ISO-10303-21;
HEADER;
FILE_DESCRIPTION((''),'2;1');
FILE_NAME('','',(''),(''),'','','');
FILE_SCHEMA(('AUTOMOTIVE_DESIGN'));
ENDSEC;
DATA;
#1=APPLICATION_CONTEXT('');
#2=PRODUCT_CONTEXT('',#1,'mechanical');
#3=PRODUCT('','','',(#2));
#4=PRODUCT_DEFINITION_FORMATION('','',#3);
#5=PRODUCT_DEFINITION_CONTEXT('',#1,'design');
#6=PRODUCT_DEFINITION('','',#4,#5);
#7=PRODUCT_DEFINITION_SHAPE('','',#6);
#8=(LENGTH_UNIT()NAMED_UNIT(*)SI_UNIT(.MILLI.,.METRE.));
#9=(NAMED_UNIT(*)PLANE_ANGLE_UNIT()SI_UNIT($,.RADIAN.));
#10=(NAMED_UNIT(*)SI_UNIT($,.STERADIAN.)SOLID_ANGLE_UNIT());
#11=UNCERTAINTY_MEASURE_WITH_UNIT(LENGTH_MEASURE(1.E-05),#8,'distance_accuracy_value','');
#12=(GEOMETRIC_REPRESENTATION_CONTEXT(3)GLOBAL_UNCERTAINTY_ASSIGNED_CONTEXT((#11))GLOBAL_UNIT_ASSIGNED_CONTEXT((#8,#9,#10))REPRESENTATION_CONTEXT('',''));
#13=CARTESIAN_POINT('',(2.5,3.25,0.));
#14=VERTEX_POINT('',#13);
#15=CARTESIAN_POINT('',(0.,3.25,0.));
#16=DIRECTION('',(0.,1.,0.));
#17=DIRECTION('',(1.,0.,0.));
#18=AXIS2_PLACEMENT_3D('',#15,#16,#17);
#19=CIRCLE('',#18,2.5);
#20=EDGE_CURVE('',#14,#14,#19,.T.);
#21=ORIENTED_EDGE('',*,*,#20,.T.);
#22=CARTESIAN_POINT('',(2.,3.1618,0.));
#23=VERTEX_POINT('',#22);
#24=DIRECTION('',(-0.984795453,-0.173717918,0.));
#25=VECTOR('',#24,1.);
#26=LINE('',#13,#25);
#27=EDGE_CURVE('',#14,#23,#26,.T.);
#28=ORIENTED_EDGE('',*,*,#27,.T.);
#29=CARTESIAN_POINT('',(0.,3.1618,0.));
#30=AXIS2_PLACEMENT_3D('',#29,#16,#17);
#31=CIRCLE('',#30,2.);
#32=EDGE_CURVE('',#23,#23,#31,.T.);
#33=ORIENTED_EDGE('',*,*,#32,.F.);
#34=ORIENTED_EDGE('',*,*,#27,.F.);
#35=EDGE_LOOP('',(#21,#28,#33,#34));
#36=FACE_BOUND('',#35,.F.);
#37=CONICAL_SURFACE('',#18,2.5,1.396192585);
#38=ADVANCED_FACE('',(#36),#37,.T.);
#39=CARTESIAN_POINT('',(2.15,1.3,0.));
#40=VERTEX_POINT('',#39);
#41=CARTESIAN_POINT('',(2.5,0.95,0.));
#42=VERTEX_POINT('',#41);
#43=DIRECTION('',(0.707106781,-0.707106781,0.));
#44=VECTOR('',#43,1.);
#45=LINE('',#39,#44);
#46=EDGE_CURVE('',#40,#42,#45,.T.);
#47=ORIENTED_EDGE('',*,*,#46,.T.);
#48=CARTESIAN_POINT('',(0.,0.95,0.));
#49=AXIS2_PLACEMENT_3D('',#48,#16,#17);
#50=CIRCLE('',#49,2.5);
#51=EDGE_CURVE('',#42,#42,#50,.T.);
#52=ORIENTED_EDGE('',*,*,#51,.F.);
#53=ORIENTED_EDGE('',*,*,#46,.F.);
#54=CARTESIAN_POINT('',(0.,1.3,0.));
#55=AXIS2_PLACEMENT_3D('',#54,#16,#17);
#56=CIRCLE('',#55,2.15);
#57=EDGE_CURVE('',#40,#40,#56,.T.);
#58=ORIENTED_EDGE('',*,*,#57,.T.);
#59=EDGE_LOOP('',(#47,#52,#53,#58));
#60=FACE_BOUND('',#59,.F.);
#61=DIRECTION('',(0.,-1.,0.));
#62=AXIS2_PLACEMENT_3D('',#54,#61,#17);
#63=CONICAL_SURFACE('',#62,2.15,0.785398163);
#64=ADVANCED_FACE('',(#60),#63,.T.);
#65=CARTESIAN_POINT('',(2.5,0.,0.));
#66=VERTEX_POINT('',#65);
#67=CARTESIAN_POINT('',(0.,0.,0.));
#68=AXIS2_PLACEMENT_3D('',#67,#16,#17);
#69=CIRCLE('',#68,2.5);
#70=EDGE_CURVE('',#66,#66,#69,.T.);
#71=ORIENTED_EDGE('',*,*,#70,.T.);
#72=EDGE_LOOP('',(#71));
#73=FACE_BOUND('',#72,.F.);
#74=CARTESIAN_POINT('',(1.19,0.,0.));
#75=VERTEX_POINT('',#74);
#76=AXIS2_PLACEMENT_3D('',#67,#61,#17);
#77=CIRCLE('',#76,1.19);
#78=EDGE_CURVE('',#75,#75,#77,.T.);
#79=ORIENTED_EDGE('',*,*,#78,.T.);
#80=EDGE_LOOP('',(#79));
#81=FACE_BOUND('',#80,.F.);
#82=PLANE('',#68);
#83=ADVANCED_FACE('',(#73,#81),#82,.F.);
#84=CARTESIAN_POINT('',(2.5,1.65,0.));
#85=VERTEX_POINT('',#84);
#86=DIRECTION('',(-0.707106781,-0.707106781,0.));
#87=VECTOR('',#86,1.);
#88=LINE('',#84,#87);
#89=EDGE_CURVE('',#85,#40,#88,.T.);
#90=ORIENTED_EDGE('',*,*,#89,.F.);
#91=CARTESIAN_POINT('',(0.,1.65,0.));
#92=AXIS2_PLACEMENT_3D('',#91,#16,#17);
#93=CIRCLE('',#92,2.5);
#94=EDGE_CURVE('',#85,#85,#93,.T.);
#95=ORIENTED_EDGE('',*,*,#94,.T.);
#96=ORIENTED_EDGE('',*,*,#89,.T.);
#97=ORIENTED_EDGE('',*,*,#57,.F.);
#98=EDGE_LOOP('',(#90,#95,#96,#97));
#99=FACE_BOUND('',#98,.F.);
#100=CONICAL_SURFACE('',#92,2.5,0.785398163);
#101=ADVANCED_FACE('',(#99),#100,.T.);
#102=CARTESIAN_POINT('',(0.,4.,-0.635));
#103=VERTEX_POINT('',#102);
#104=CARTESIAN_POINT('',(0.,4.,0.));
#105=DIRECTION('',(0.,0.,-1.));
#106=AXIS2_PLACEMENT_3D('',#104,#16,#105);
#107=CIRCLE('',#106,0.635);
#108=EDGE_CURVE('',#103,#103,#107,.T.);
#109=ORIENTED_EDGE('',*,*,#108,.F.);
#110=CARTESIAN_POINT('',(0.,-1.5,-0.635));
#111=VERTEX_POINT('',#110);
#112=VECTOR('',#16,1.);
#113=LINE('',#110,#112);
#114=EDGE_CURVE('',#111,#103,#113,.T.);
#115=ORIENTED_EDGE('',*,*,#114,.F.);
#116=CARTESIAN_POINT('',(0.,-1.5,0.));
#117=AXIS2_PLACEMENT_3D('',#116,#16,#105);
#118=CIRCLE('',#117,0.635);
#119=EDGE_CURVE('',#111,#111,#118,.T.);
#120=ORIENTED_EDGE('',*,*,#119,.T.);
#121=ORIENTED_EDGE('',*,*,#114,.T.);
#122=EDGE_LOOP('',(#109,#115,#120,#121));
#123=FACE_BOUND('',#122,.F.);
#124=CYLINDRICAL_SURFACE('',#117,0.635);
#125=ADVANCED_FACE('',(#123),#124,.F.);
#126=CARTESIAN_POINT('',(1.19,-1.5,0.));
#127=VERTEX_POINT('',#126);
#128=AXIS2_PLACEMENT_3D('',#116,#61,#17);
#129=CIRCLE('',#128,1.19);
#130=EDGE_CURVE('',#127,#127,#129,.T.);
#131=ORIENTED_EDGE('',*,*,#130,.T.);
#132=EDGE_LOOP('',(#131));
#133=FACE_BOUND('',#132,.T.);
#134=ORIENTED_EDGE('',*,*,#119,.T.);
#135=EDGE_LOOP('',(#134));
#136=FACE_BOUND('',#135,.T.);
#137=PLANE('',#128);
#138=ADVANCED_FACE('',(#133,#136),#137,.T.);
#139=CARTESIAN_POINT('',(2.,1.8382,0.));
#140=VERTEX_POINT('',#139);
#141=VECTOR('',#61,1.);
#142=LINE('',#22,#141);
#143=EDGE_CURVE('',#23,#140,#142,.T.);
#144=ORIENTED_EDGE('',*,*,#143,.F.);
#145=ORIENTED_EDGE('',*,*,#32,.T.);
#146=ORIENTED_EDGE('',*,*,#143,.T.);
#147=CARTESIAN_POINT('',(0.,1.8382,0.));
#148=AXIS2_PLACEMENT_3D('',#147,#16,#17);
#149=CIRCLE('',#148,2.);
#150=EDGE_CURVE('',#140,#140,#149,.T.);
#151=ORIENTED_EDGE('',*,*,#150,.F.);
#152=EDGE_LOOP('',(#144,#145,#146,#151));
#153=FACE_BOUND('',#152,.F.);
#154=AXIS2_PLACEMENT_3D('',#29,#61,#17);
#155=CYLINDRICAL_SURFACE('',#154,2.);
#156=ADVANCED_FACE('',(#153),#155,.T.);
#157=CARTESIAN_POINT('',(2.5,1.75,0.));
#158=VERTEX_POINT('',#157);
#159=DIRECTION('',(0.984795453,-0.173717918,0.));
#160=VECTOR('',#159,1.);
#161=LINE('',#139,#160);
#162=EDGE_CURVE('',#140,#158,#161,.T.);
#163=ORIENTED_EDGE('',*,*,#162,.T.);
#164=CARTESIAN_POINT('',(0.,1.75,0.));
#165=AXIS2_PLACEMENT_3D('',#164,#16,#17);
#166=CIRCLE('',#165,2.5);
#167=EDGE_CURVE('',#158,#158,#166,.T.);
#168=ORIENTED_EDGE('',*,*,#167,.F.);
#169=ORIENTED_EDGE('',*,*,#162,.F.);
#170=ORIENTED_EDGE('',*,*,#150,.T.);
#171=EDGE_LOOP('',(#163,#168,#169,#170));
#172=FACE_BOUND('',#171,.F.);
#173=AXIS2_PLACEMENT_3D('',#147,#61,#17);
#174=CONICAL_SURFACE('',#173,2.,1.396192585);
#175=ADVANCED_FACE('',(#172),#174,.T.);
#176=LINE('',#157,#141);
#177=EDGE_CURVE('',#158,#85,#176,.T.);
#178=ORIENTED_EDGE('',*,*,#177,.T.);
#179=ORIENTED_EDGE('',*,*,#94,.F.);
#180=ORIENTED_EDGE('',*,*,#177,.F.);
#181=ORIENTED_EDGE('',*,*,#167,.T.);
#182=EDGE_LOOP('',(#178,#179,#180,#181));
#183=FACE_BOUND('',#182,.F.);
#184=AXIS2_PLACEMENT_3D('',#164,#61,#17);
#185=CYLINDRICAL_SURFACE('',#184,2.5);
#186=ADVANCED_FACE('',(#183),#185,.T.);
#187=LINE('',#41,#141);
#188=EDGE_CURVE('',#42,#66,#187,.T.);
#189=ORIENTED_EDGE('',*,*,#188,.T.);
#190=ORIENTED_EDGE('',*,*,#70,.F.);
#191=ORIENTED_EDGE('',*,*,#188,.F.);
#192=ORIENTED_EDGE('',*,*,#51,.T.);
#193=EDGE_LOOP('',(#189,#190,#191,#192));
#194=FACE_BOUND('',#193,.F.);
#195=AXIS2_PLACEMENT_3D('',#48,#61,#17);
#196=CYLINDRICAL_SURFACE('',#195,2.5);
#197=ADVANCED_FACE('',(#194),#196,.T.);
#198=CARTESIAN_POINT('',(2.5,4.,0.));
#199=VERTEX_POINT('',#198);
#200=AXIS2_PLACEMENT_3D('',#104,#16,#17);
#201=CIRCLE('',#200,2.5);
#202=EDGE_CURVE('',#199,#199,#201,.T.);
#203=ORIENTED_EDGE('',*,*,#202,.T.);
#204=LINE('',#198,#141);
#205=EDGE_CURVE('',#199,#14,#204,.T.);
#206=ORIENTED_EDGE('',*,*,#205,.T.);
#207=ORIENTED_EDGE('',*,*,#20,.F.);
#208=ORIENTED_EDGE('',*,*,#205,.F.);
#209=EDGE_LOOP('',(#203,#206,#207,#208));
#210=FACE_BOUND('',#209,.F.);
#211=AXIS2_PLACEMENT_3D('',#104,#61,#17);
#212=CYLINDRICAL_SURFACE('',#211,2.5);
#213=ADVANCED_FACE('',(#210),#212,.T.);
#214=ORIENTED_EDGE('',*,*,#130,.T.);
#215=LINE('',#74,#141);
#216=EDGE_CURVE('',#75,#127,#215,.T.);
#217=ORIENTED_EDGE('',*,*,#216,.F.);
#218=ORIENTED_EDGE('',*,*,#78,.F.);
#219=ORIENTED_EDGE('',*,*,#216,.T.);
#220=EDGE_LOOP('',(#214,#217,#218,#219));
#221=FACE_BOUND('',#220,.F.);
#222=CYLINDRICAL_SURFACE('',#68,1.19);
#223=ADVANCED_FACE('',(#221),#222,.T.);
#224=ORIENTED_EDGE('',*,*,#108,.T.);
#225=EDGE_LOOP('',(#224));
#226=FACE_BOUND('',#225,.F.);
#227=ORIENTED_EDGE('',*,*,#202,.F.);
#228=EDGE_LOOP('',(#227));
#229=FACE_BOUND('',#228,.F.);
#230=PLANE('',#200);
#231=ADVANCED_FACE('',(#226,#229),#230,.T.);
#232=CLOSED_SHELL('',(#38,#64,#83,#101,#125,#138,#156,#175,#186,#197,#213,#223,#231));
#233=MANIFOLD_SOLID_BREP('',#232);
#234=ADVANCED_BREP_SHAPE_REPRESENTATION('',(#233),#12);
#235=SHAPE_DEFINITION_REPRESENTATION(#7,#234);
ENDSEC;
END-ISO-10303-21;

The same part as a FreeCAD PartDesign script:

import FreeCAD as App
import Part
import Sketcher
from FreeCAD import Vector
Q = App.Units.Quantity


def add_polygon(sketch, points):
    """Adds a closed chain of lines whose ends are joined by coincident constraints."""
    first, n = sketch.GeometryCount, len(points)
    for a, b in zip(points, points[1:] + points[:1]):
        sketch.addGeometry(Part.LineSegment(App.Vector(*a, 0), App.Vector(*b, 0)), False)
    for i in range(n):
        sketch.addConstraint(Sketcher.Constraint("Coincident", first + i, 2, first + (i + 1) % n, 1))

doc = App.newDocument("Part")
body = doc.addObject("PartDesign::Body", "Body")

# Sketch on XY plane
sketch1 = doc.addObject("Sketcher::SketchObject", "Sketch")
body.addObject(sketch1)
sketch1.AttachmentSupport = (doc.XY_Plane, [""])
sketch1.MapMode = "FlatFace"
add_polygon(sketch1, [(0, 4), (0, 0), (2.5, 0), (2.5, 0.95), (2.15, 1.3), (2.5, 1.65), (2.5, 1.75), (2, 1.84), (2, 3.16), (2.5, 3.25), (2.5, 4)])  # lines 0-10
sketch1.addConstraint([
    Sketcher.Constraint("Vertical", 0),
    Sketcher.Constraint("Horizontal", 1),
    Sketcher.Constraint("Vertical", 2),
    Sketcher.Constraint("Vertical", 5),
    Sketcher.Constraint("Vertical", 7),
    Sketcher.Constraint("Vertical", 9),
    Sketcher.Constraint("Horizontal", 10),
    Sketcher.Constraint("Coincident", 0, 2, -1, 1),
    Sketcher.Constraint("Perpendicular", 3, 4),
    Sketcher.Constraint("Vertical", 2, 2, 4, 2),
    Sketcher.Constraint("Vertical", 5, 2, 8, 2),
    Sketcher.Constraint("Equal", 3, 4),
    Sketcher.Constraint("Equal", 6, 8),
    Sketcher.Constraint("DistanceY", 9, 1, 9, 2, Q("0.75 mm")),
    Sketcher.Constraint("DistanceY", -1, 1, 3, 2, Q("1.3 mm")),
    Sketcher.Constraint("DistanceY", 0, 2, 0, 1, Q("4 mm")),
    Sketcher.Constraint("DistanceY", -1, 1, 5, 2, Q("1.75 mm")),
    Sketcher.Constraint("DistanceX", 3, 2, 2, 2, Q("0.35 mm")),
    Sketcher.Constraint("DistanceX", 1, 1, 1, 2, Q("2.5 mm")),
    Sketcher.Constraint("DistanceY", 7, 1, 7, 2, Q("1.3236 mm")),
    Sketcher.Constraint("DistanceX", -1, 1, 6, 2, Q("2 mm")),
])
revolution = doc.addObject("PartDesign::Revolution", "Revolution")
body.addObject(revolution)
revolution.Profile = sketch1
revolution.ReferenceAxis = (sketch1, ["V_Axis"])
revolution.Angle = 360

# Sketch on XZ plane
sketch2 = doc.addObject("Sketcher::SketchObject", "Sketch001")
body.addObject(sketch2)
sketch2.AttachmentSupport = (doc.XZ_Plane, [""])
sketch2.MapMode = "FlatFace"
sketch2.addGeometry(Part.Circle(Vector(0, 0, 0), Vector(0, 0, 1), 1.2), False)
sketch2.addConstraint([
    Sketcher.Constraint("Coincident", 0, 3, -1, 1),
    Sketcher.Constraint("Diameter", 0, Q("2.38 mm")),
])
pad1 = doc.addObject("PartDesign::Pad", "Pad")
body.addObject(pad1)
pad1.Profile = sketch2
pad1.Length = 1.5

# Sketch on XZ plane
sketch3 = doc.addObject("Sketcher::SketchObject", "Sketch002")
body.addObject(sketch3)
sketch3.AttachmentSupport = (doc.XZ_Plane, [""])
sketch3.MapMode = "FlatFace"
sketch3.AttachmentOffset = App.Placement(Vector(0, 0, 1.5), App.Rotation())
sketch3.addGeometry(Part.Circle(Vector(0, 0, 0), Vector(0, 0, 1), 0.6), False)
sketch3.addConstraint([
    Sketcher.Constraint("Coincident", 0, 3, -1, 1),
    Sketcher.Constraint("Diameter", 0, Q("1.27 mm")),
])
doc.recompute()
hole = doc.addObject("PartDesign::Hole", "Hole")
body.addObject(hole)
hole.Profile = sketch3
hole.ThreadType = "None"
hole.Diameter = 1.27
hole.DepthType = "ThroughAll"

doc.recompute()
